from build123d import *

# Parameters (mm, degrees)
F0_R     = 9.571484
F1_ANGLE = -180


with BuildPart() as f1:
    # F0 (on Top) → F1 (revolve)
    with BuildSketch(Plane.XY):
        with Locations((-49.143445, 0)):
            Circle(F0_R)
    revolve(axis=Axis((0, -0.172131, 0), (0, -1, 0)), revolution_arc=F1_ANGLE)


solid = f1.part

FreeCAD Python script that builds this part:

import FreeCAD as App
import Part
import Sketcher

V = App.Vector
Q = App.Units.Quantity

doc = App.newDocument("Part")
params = doc.addObject("Spreadsheet::Sheet", "Params")
for row, (alias, value) in enumerate([
    ("revolution_angle", "180 deg"),
], start=1):
    params.set(f"A{row}", alias)
    params.set(f"B{row}", "=" + value)
    params.setAlias(f"B{row}", alias)

body = doc.addObject("PartDesign::Body", "Body")

# Sketch on XY plane
sketch1 = doc.addObject("Sketcher::SketchObject", "Sketch")
body.addObject(sketch1)
sketch1.AttachmentSupport = (doc.XY_Plane, [""])
sketch1.MapMode = "FlatFace"
sketch1.addGeometry(Part.Circle(V(-49, 0, 0), V(0, 0, 1), 10), False)
sketch1.addConstraint([
    Sketcher.Constraint("PointOnObject", 0, 3, -1),
    Sketcher.Constraint("Diameter", 0, Q("19.142968 mm")),
    Sketcher.Constraint("DistanceX", 0, 3, -1, 1, Q("49.143445 mm")),
])
revolution = doc.addObject("PartDesign::Revolution", "Revolution")
body.addObject(revolution)
revolution.Profile = sketch1
revolution.ReferenceAxis = (sketch1, ["V_Axis"])
revolution.setExpression("Angle", "Params.revolution_angle")

doc.recompute()
